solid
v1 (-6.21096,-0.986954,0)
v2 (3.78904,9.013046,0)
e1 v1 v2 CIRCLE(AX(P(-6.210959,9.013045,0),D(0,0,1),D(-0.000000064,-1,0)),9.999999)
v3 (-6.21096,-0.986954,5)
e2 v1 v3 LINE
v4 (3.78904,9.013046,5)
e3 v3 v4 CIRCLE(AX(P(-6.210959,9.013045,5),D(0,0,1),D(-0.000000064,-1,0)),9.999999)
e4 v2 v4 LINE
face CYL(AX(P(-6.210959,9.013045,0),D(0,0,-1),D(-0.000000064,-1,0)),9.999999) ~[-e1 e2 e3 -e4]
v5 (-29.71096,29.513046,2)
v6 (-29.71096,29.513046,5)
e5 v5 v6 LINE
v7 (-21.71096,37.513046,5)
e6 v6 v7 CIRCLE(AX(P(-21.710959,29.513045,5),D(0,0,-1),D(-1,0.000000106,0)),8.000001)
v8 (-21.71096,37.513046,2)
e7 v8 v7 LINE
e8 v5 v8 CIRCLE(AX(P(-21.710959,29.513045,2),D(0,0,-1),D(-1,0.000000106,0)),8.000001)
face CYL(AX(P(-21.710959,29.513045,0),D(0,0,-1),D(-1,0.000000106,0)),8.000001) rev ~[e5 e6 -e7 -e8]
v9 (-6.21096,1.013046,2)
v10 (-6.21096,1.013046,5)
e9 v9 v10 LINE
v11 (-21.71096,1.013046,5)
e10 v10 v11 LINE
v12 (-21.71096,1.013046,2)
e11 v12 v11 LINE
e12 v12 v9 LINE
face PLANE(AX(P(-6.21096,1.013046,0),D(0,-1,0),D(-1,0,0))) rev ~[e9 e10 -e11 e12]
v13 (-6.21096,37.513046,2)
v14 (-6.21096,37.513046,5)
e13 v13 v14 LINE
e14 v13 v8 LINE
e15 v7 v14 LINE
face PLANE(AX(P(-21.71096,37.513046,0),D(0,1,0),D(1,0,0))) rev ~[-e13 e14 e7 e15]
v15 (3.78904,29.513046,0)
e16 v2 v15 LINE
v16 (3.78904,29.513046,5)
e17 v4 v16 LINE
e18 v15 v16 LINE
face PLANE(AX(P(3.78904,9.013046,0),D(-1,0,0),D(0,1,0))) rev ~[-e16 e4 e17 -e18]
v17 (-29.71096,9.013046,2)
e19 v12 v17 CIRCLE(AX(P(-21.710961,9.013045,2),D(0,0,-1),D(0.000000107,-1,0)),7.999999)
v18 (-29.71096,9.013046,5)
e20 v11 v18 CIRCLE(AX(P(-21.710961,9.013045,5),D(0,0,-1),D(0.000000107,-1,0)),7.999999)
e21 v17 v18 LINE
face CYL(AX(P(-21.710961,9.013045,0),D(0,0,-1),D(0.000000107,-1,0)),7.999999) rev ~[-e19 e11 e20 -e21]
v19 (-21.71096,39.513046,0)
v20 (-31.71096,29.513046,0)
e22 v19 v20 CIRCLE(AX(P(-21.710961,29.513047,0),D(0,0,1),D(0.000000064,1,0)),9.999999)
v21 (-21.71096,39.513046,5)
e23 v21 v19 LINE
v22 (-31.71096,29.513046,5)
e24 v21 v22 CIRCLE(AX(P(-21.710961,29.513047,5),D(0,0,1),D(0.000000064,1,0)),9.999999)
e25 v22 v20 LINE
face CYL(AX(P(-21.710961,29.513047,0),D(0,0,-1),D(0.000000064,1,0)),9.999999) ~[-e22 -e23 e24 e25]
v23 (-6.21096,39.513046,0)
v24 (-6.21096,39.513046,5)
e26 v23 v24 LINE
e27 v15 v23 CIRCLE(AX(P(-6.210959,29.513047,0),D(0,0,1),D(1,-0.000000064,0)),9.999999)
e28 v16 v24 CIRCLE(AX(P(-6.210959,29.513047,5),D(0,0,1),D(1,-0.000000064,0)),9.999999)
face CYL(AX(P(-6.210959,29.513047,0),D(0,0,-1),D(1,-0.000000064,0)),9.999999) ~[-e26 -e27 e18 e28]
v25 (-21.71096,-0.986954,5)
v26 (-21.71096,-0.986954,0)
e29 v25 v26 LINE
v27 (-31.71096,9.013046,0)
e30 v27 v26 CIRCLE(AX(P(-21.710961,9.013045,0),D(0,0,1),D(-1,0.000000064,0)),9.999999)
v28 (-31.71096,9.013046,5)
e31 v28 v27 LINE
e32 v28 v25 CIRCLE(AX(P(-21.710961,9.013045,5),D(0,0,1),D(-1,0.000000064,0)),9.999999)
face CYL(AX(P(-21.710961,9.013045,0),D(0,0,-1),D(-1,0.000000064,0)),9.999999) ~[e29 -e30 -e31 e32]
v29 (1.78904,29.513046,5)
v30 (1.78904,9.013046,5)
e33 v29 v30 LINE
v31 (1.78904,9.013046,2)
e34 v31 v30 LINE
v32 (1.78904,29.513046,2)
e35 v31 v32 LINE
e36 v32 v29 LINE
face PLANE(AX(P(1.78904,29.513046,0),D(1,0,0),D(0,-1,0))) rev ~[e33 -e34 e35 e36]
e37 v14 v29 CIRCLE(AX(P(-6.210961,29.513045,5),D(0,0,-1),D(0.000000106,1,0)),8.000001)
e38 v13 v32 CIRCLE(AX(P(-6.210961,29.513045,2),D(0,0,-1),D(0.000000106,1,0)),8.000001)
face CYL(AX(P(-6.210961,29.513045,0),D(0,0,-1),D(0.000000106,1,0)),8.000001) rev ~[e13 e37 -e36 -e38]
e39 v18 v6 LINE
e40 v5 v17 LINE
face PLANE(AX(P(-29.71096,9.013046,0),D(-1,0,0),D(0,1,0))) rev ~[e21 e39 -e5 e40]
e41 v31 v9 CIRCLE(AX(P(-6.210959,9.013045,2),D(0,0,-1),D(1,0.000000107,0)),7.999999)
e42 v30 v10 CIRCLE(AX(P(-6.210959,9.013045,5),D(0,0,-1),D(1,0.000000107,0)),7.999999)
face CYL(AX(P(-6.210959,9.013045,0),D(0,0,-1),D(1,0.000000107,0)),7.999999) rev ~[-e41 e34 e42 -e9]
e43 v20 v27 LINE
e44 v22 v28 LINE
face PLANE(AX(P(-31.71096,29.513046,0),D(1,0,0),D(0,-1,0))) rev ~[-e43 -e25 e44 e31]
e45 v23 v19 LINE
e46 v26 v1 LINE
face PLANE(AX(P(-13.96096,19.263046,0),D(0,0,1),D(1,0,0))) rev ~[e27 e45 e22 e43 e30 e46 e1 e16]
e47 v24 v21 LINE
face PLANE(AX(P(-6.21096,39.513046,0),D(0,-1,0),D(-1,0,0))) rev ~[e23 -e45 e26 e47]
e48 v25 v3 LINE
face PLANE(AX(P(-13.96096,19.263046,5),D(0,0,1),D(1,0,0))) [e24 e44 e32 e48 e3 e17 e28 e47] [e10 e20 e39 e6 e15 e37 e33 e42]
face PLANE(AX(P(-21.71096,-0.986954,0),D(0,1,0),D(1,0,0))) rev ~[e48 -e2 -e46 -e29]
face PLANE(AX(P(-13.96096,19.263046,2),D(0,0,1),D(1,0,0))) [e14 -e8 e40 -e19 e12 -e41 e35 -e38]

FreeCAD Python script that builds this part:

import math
import FreeCAD as App
import Part
import Sketcher
from FreeCAD import Vector
Q = App.Units.Quantity

doc = App.newDocument("Part")
body = doc.addObject("PartDesign::Body", "Body")

# Sketch on XY plane
sketch1 = doc.addObject("Sketcher::SketchObject", "Sketch")
body.addObject(sketch1)
sketch1.AttachmentSupport = (doc.XY_Plane, [""])
sketch1.MapMode = "FlatFace"
sketch1.addGeometry(Part.LineSegment(Vector(-22, -1, 0), Vector(-6, -1, 0)), False)
sketch1.addGeometry(Part.ArcOfCircle(Part.Circle(Vector(-6, 9, 0), Vector(0, 0, 1), 10), math.radians(-90), math.radians(0)), False)
sketch1.addGeometry(Part.LineSegment(Vector(4, 9, 0), Vector(4, 30, 0)), False)
sketch1.addGeometry(Part.ArcOfCircle(Part.Circle(Vector(-6, 30, 0), Vector(0, 0, 1), 10), math.radians(0), math.radians(90)), False)
sketch1.addGeometry(Part.LineSegment(Vector(-6, 40, 0), Vector(-22, 40, 0)), False)
sketch1.addGeometry(Part.ArcOfCircle(Part.Circle(Vector(-22, 30, 0), Vector(0, 0, 1), 10), math.radians(90), math.radians(180)), False)
sketch1.addGeometry(Part.LineSegment(Vector(-32, 30, 0), Vector(-32, 9, 0)), False)
sketch1.addGeometry(Part.ArcOfCircle(Part.Circle(Vector(-22, 9, 0), Vector(0, 0, 1), 10), math.radians(180), math.radians(270)), False)
sketch1.addConstraint(Sketcher.Constraint("Tangent", 0, 2, 1, 1))
sketch1.addConstraint(Sketcher.Constraint("Tangent", 1, 2, 2, 1))
sketch1.addConstraint(Sketcher.Constraint("Tangent", 2, 2, 3, 1))
sketch1.addConstraint(Sketcher.Constraint("Tangent", 3, 2, 4, 1))
sketch1.addConstraint(Sketcher.Constraint("Tangent", 4, 2, 5, 1))
sketch1.addConstraint(Sketcher.Constraint("Tangent", 5, 2, 6, 1))
sketch1.addConstraint(Sketcher.Constraint("Tangent", 6, 2, 7, 1))
sketch1.addConstraint(Sketcher.Constraint("Tangent", 7, 2, 0, 1))
sketch1.addConstraint(Sketcher.Constraint("Horizontal", 0))
sketch1.addConstraint(Sketcher.Constraint("Vertical", 2))
sketch1.addConstraint(Sketcher.Constraint("Horizontal", 4))
sketch1.addConstraint(Sketcher.Constraint("Vertical", 6))
sketch1.addConstraint(Sketcher.Constraint("Equal", 1, 3))
sketch1.addConstraint(Sketcher.Constraint("Equal", 3, 5))
sketch1.addConstraint(Sketcher.Constraint("Equal", 5, 7))
sketch1.addConstraint(Sketcher.Constraint("Radius", 1, Q("9.999999 mm")))
sketch1.addConstraint(Sketcher.Constraint("DistanceX", 0, 1, 0, 2, Q("15.5 mm")))
sketch1.addConstraint(Sketcher.Constraint("DistanceY", 2, 1, 2, 2, Q("20.5 mm")))
sketch1.addConstraint(Sketcher.Constraint("DistanceX", 1, 3, -1, 1, Q("6.210959 mm")))
sketch1.addConstraint(Sketcher.Constraint("DistanceY", -1, 1, 1, 3, Q("9.013045 mm")))
pad1 = doc.addObject("PartDesign::Pad", "Pad")
body.addObject(pad1)
pad1.Profile = sketch1
pad1.Length = 2

# Sketch on XY plane
sketch2 = doc.addObject("Sketcher::SketchObject", "Sketch001")
body.addObject(sketch2)
sketch2.AttachmentSupport = (doc.XY_Plane, [""])
sketch2.MapMode = "FlatFace"
sketch2.addGeometry(Part.LineSegment(Vector(-22, -1, 0), Vector(-6, -1, 0)), False)
sketch2.addGeometry(Part.ArcOfCircle(Part.Circle(Vector(-6, 9, 0), Vector(0, 0, 1), 10), math.radians(-90), math.radians(0)), False)
sketch2.addGeometry(Part.LineSegment(Vector(4, 9, 0), Vector(4, 30, 0)), False)
sketch2.addGeometry(Part.ArcOfCircle(Part.Circle(Vector(-6, 30, 0), Vector(0, 0, 1), 10), math.radians(0), math.radians(90)), False)
sketch2.addGeometry(Part.LineSegment(Vector(-6, 40, 0), Vector(-22, 40, 0)), False)
sketch2.addGeometry(Part.ArcOfCircle(Part.Circle(Vector(-22, 30, 0), Vector(0, 0, 1), 10), math.radians(90), math.radians(180)), False)
sketch2.addGeometry(Part.LineSegment(Vector(-32, 30, 0), Vector(-32, 9, 0)), False)
sketch2.addGeometry(Part.ArcOfCircle(Part.Circle(Vector(-22, 9, 0), Vector(0, 0, 1), 10), math.radians(180), math.radians(270)), False)
sketch2.addGeometry(Part.LineSegment(Vector(2, 30, 0), Vector(2, 9, 0)), False)
sketch2.addGeometry(Part.ArcOfCircle(Part.Circle(Vector(-6, 9, 0), Vector(0, 0, 1), 8), math.radians(-90), math.radians(0)), False)
sketch2.addGeometry(Part.LineSegment(Vector(-6, 1, 0), Vector(-22, 1, 0)), False)
sketch2.addGeometry(Part.ArcOfCircle(Part.Circle(Vector(-22, 9, 0), Vector(0, 0, 1), 8), math.radians(180), math.radians(270)), False)
sketch2.addGeometry(Part.LineSegment(Vector(-30, 9, 0), Vector(-30, 30, 0)), False)
sketch2.addGeometry(Part.ArcOfCircle(Part.Circle(Vector(-22, 30, 0), Vector(0, 0, 1), 8), math.radians(90), math.radians(180)), False)
sketch2.addGeometry(Part.LineSegment(Vector(-22, 38, 0), Vector(-6, 38, 0)), False)
sketch2.addGeometry(Part.ArcOfCircle(Part.Circle(Vector(-6, 30, 0), Vector(0, 0, 1), 8), math.radians(0), math.radians(90)), False)
sketch2.addConstraint(Sketcher.Constraint("Tangent", 0, 2, 1, 1))
sketch2.addConstraint(Sketcher.Constraint("Tangent", 1, 2, 2, 1))
sketch2.addConstraint(Sketcher.Constraint("Tangent", 2, 2, 3, 1))
sketch2.addConstraint(Sketcher.Constraint("Tangent", 3, 2, 4, 1))
sketch2.addConstraint(Sketcher.Constraint("Tangent", 4, 2, 5, 1))
sketch2.addConstraint(Sketcher.Constraint("Tangent", 5, 2, 6, 1))
sketch2.addConstraint(Sketcher.Constraint("Tangent", 6, 2, 7, 1))
sketch2.addConstraint(Sketcher.Constraint("Tangent", 7, 2, 0, 1))
sketch2.addConstraint(Sketcher.Constraint("Tangent", 8, 2, 9, 2))
sketch2.addConstraint(Sketcher.Constraint("Tangent", 9, 1, 10, 1))
sketch2.addConstraint(Sketcher.Constraint("Tangent", 10, 2, 11, 2))
sketch2.addConstraint(Sketcher.Constraint("Tangent", 11, 1, 12, 1))
sketch2.addConstraint(Sketcher.Constraint("Tangent", 12, 2, 13, 2))
sketch2.addConstraint(Sketcher.Constraint("Tangent", 13, 1, 14, 1))
sketch2.addConstraint(Sketcher.Constraint("Tangent", 14, 2, 15, 2))
sketch2.addConstraint(Sketcher.Constraint("Tangent", 15, 1, 8, 1))
sketch2.addConstraint(Sketcher.Constraint("Horizontal", 0))
sketch2.addConstraint(Sketcher.Constraint("Vertical", 2))
sketch2.addConstraint(Sketcher.Constraint("Horizontal", 4))
sketch2.addConstraint(Sketcher.Constraint("Vertical", 6))
sketch2.addConstraint(Sketcher.Constraint("Vertical", 8))
sketch2.addConstraint(Sketcher.Constraint("Horizontal", 10))
sketch2.addConstraint(Sketcher.Constraint("Vertical", 12))
sketch2.addConstraint(Sketcher.Constraint("Horizontal", 14))
sketch2.addConstraint(Sketcher.Constraint("Coincident", 9, 3, 1, 3))
sketch2.addConstraint(Sketcher.Constraint("Coincident", 11, 3, 7, 3))
sketch2.addConstraint(Sketcher.Constraint("Coincident", 13, 3, 5, 3))
sketch2.addConstraint(Sketcher.Constraint("Equal", 1, 3))
sketch2.addConstraint(Sketcher.Constraint("Equal", 3, 5))
sketch2.addConstraint(Sketcher.Constraint("Equal", 5, 7))
sketch2.addConstraint(Sketcher.Constraint("Equal", 13, 15))
sketch2.addConstraint(Sketcher.Constraint("Radius", 1, Q("9.999999 mm")))
sketch2.addConstraint(Sketcher.Constraint("Radius", 9, Q("7.999999 mm")))
sketch2.addConstraint(Sketcher.Constraint("DistanceX", 0, 1, 0, 2, Q("15.5 mm")))
sketch2.addConstraint(Sketcher.Constraint("DistanceY", 2, 1, 2, 2, Q("20.5 mm")))
sketch2.addConstraint(Sketcher.Constraint("DistanceX", 1, 3, -1, 1, Q("6.210959 mm")))
sketch2.addConstraint(Sketcher.Constraint("DistanceY", -1, 1, 1, 3, Q("9.013045 mm")))
pad2 = doc.addObject("PartDesign::Pad", "Pad001")
body.addObject(pad2)
pad2.Profile = sketch2
pad2.Length = 5

doc.recompute()
